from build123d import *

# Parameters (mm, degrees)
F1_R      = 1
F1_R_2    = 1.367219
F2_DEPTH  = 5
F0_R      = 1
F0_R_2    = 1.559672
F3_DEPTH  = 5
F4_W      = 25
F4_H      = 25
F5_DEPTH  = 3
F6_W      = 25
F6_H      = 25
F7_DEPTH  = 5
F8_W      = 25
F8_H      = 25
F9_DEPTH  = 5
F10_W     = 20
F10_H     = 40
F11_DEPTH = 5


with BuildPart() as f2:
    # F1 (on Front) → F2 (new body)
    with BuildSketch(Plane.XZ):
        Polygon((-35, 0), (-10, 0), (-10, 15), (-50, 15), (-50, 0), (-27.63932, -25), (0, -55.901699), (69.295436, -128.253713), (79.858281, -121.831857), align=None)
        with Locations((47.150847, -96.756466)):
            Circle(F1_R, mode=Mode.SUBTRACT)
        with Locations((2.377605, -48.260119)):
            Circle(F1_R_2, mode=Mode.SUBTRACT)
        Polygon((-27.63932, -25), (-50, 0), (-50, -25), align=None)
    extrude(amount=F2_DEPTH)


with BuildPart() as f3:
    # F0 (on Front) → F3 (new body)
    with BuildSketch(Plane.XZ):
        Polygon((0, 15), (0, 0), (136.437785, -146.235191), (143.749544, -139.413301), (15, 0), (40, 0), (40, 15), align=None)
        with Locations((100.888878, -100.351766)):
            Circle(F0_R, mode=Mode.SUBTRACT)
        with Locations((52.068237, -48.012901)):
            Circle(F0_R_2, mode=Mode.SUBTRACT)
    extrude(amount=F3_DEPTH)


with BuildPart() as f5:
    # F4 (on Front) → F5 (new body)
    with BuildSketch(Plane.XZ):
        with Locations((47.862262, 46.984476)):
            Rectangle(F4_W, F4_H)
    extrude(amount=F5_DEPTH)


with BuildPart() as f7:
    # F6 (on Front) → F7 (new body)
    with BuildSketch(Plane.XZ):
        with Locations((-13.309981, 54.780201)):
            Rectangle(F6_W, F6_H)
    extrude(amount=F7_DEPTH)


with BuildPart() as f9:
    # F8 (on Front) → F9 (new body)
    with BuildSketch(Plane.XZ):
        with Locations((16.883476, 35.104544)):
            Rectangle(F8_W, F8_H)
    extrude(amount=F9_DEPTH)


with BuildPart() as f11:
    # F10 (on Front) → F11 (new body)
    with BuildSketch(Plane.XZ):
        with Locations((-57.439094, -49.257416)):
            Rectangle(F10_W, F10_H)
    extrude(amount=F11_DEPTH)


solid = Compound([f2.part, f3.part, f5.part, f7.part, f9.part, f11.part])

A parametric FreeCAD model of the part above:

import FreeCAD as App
import Part
import Sketcher
from FreeCAD import Vector

doc = App.newDocument("Part")
body = doc.addObject("PartDesign::Body", "Body")

sketch1 = doc.addObject("Sketcher::SketchObject", "Sketch")
body.addObject(sketch1)
sketch1.AttachmentSupport = (doc.XZ_Plane, [""])
sketch1.MapMode = "FlatFace"
sketch1.addGeometry([
    Part.LineSegment(Vector(-35, 0, 0), Vector(-10, 0, 0)),
    Part.LineSegment(Vector(-10, 0, 0), Vector(-10, 15, 0)),
    Part.LineSegment(Vector(-10, 15, 0), Vector(-50, 15, 0)),
    Part.LineSegment(Vector(-50, 15, 0), Vector(-50, -25, 0)),
    Part.LineSegment(Vector(-50, -25, 0), Vector(-27.6, -25, 0)),
    Part.LineSegment(Vector(-27.6, -25, 0), Vector(0, -55.9, 0)),
    Part.LineSegment(Vector(0, -55.9, 0), Vector(69.3, -128.3, 0)),
    Part.LineSegment(Vector(69.3, -128.3, 0), Vector(79.9, -121.8, 0)),
    Part.LineSegment(Vector(79.9, -121.8, 0), Vector(-35, 0, 0)),
    Part.Circle(Vector(47.2, -96.8, 0), Vector(0, 0, 1), 1),
    Part.Circle(Vector(2.4, -48.3, 0), Vector(0, 0, 1), 1.4),
], False)
sketch1.addConstraint([
    Sketcher.Constraint("Coincident", 0, 2, 1, 1),
    Sketcher.Constraint("Coincident", 1, 2, 2, 1),
    Sketcher.Constraint("Coincident", 2, 2, 3, 1),
    Sketcher.Constraint("Coincident", 3, 2, 4, 1),
    Sketcher.Constraint("Coincident", 4, 2, 5, 1),
    Sketcher.Constraint("Coincident", 5, 2, 6, 1),
    Sketcher.Constraint("Coincident", 6, 2, 7, 1),
    Sketcher.Constraint("Coincident", 7, 2, 8, 1),
    Sketcher.Constraint("Coincident", 8, 2, 0, 1),
    Sketcher.Constraint("Horizontal", 0),
    Sketcher.Constraint("Vertical", 1),
    Sketcher.Constraint("Horizontal", 2),
    Sketcher.Constraint("Vertical", 3),
    Sketcher.Constraint("Horizontal", 4),
    Sketcher.Constraint("PointOnObject", 0, 2, -1),
    Sketcher.Constraint("PointOnObject", 5, 2, -2),
    Sketcher.Constraint("Equal", 2, 3),
    Sketcher.Constraint("Diameter", 9, 2.0),
    Sketcher.Constraint("DistanceX", 0, 1, 0, 2, 25.0),
    Sketcher.Constraint("DistanceX", 2, 2, 2, 1, 40.0),
    Sketcher.Constraint("DistanceY", 1, 1, 1, 2, 15.0),
    Sketcher.Constraint("DistanceX", 0, 2, -1, 1, 10.0),
    Sketcher.Constraint("Diameter", 10, 2.734438),
    Sketcher.Constraint("DistanceX", 4, 1, 4, 2, 22.36068),
    Sketcher.Constraint("DistanceY", 5, 2, -1, 1, 55.901699),
    Sketcher.Constraint("DistanceX", 4, 2, 7, 2, 107.497601),
    Sketcher.Constraint("Distance", 6, 100.183189),
    Sketcher.Constraint("DistanceY", 10, 3, -1, 1, 48.260119),
    Sketcher.Constraint("DistanceX", 10, 3, 9, 3, 44.773242),
    Sketcher.Constraint("DistanceX", 9, 3, 6, 2, 22.144589),
    Sketcher.Constraint("DistanceY", 7, 2, 9, 3, 25.075391),
    Sketcher.Constraint("DistanceY", 7, 2, 5, 2, 65.930158),
    Sketcher.Constraint("Distance", 7, 12.361793),
])
pad1 = doc.addObject("PartDesign::Pad", "Pad")
body.addObject(pad1)
pad1.Profile = sketch1
pad1.Length = 5
body2 = doc.addObject("PartDesign::Body", "Body001")

sketch2 = doc.addObject("Sketcher::SketchObject", "Sketch001")
body2.addObject(sketch2)
sketch2.AttachmentSupport = (doc.getObject("XZ_Plane001"), [""])
sketch2.MapMode = "FlatFace"
sketch2.addGeometry([
    Part.LineSegment(Vector(0, 15, 0), Vector(0, 0, 0)),
    Part.LineSegment(Vector(0, 0, 0), Vector(136.4, -146.2, 0)),
    Part.LineSegment(Vector(136.4, -146.2, 0), Vector(143.7, -139.4, 0)),
    Part.LineSegment(Vector(143.7, -139.4, 0), Vector(15, 0, 0)),
    Part.LineSegment(Vector(15, 0, 0), Vector(40, 0, 0)),
    Part.LineSegment(Vector(40, 0, 0), Vector(40, 15, 0)),
    Part.LineSegment(Vector(40, 15, 0), Vector(0, 15, 0)),
    Part.Circle(Vector(100.9, -100.4, 0), Vector(0, 0, 1), 1),
    Part.Circle(Vector(52.1, -48, 0), Vector(0, 0, 1), 1.6),
], False)
sketch2.addConstraint([
    Sketcher.Constraint("Coincident", 0, 2, 1, 1),
    Sketcher.Constraint("Coincident", 1, 2, 2, 1),
    Sketcher.Constraint("Coincident", 2, 2, 3, 1),
    Sketcher.Constraint("Coincident", 3, 2, 4, 1),
    Sketcher.Constraint("Coincident", 4, 2, 5, 1),
    Sketcher.Constraint("Coincident", 5, 2, 6, 1),
    Sketcher.Constraint("Coincident", 6, 2, 0, 1),
    Sketcher.Constraint("Vertical", 0),
    Sketcher.Constraint("Horizontal", 4),
    Sketcher.Constraint("Vertical", 5),
    Sketcher.Constraint("Horizontal", 6),
    Sketcher.Constraint("Coincident", 0, 2, -1, 1),
    Sketcher.Constraint("PointOnObject", 3, 2, -1),
    Sketcher.Constraint("Perpendicular", 1, 2),
    Sketcher.Constraint("Diameter", 7, 2.0),
    Sketcher.Constraint("DistanceX", 4, 1, 4, 2, 25.0),
    Sketcher.Constraint("DistanceX", 6, 2, 6, 1, 40.0),
    Sketcher.Constraint("DistanceY", 0, 2, 0, 1, 15.0),
    Sketcher.Constraint("Distance", 1, 200.000001),
    Sketcher.Constraint("Distance", 2, 10.0),
    Sketcher.Constraint("Diameter", 8, 3.119344),
    Sketcher.Constraint("DistanceY", 8, 3, -1, 1, 48.012901),
    Sketcher.Constraint("DistanceY", 2, 2, -1, 1, 139.413301),
    Sketcher.Constraint("DistanceX", -1, 1, 7, 3, 100.888878),
    Sketcher.Constraint("DistanceX", 8, 3, 7, 3, 48.820641),
    Sketcher.Constraint("DistanceY", 7, 3, -1, 1, 100.351766),
])
pad2 = doc.addObject("PartDesign::Pad", "Pad001")
body2.addObject(pad2)
pad2.Profile = sketch2
pad2.Length = 5
body3 = doc.addObject("PartDesign::Body", "Body002")

sketch3 = doc.addObject("Sketcher::SketchObject", "Sketch002")
body3.addObject(sketch3)
sketch3.AttachmentSupport = (doc.getObject("XZ_Plane002"), [""])
sketch3.MapMode = "FlatFace"
sketch3.addGeometry([
    Part.LineSegment(Vector(35, 59, 0), Vector(35, 34, 0)),
    Part.LineSegment(Vector(35, 34, 0), Vector(60, 34, 0)),
    Part.LineSegment(Vector(60, 34, 0), Vector(60, 59, 0)),
    Part.LineSegment(Vector(60, 59, 0), Vector(35, 59, 0)),
], False)
sketch3.addConstraint([
    Sketcher.Constraint("Coincident", 0, 2, 1, 1),
    Sketcher.Constraint("Coincident", 1, 2, 2, 1),
    Sketcher.Constraint("Coincident", 2, 2, 3, 1),
    Sketcher.Constraint("Coincident", 3, 2, 0, 1),
    Sketcher.Constraint("Vertical", 0),
    Sketcher.Constraint("Horizontal", 1),
    Sketcher.Constraint("Vertical", 2),
    Sketcher.Constraint("Horizontal", 3),
    Sketcher.Constraint("Equal", 3, 0),
    Sketcher.Constraint("DistanceX", 1, 1, 1, 2, 25.0),
    Sketcher.Constraint("DistanceX", -1, 1, 0, 2, 35.362262),
    Sketcher.Constraint("DistanceY", -1, 1, 0, 2, 34.484476),
])
pad3 = doc.addObject("PartDesign::Pad", "Pad002")
body3.addObject(pad3)
pad3.Profile = sketch3
pad3.Length = 3
body4 = doc.addObject("PartDesign::Body", "Body003")

sketch4 = doc.addObject("Sketcher::SketchObject", "Sketch003")
body4.addObject(sketch4)
sketch4.AttachmentSupport = (doc.getObject("XZ_Plane003"), [""])
sketch4.MapMode = "FlatFace"
sketch4.addGeometry([
    Part.LineSegment(Vector(-26, 67, 0), Vector(-26, 42, 0)),
    Part.LineSegment(Vector(-26, 42, 0), Vector(-1, 42, 0)),
    Part.LineSegment(Vector(-1, 42, 0), Vector(-1, 67, 0)),
    Part.LineSegment(Vector(-1, 67, 0), Vector(-26, 67, 0)),
], False)
sketch4.addConstraint([
    Sketcher.Constraint("Coincident", 0, 2, 1, 1),
    Sketcher.Constraint("Coincident", 1, 2, 2, 1),
    Sketcher.Constraint("Coincident", 2, 2, 3, 1),
    Sketcher.Constraint("Coincident", 3, 2, 0, 1),
    Sketcher.Constraint("Vertical", 0),
    Sketcher.Constraint("Horizontal", 1),
    Sketcher.Constraint("Vertical", 2),
    Sketcher.Constraint("Horizontal", 3),
    Sketcher.Constraint("Equal", 3, 0),
    Sketcher.Constraint("DistanceX", 1, 1, 1, 2, 25.0),
    Sketcher.Constraint("DistanceY", -1, 1, 0, 2, 42.280201),
    Sketcher.Constraint("DistanceX", 0, 2, -1, 1, 25.809981),
])
pad4 = doc.addObject("PartDesign::Pad", "Pad003")
body4.addObject(pad4)
pad4.Profile = sketch4
pad4.Length = 5
body5 = doc.addObject("PartDesign::Body", "Body004")

sketch5 = doc.addObject("Sketcher::SketchObject", "Sketch004")
body5.addObject(sketch5)
sketch5.AttachmentSupport = (doc.getObject("XZ_Plane004"), [""])
sketch5.MapMode = "FlatFace"
sketch5.addGeometry([
    Part.LineSegment(Vector(4, 48, 0), Vector(4, 23, 0)),
    Part.LineSegment(Vector(4, 23, 0), Vector(29, 23, 0)),
    Part.LineSegment(Vector(29, 23, 0), Vector(29, 48, 0)),
    Part.LineSegment(Vector(29, 48, 0), Vector(4, 48, 0)),
], False)
sketch5.addConstraint([
    Sketcher.Constraint("Coincident", 0, 2, 1, 1),
    Sketcher.Constraint("Coincident", 1, 2, 2, 1),
    Sketcher.Constraint("Coincident", 2, 2, 3, 1),
    Sketcher.Constraint("Coincident", 3, 2, 0, 1),
    Sketcher.Constraint("Vertical", 0),
    Sketcher.Constraint("Horizontal", 1),
    Sketcher.Constraint("Vertical", 2),
    Sketcher.Constraint("Horizontal", 3),
    Sketcher.Constraint("Equal", 3, 0),
    Sketcher.Constraint("DistanceX", 1, 1, 1, 2, 25.0),
    Sketcher.Constraint("DistanceX", -1, 1, 0, 2, 4.383476),
    Sketcher.Constraint("DistanceY", -1, 1, 0, 2, 22.604544),
])
pad5 = doc.addObject("PartDesign::Pad", "Pad004")
body5.addObject(pad5)
pad5.Profile = sketch5
pad5.Length = 5
body6 = doc.addObject("PartDesign::Body", "Body005")

sketch6 = doc.addObject("Sketcher::SketchObject", "Sketch005")
body6.addObject(sketch6)
sketch6.AttachmentSupport = (doc.getObject("XZ_Plane005"), [""])
sketch6.MapMode = "FlatFace"
sketch6.addGeometry([
    Part.LineSegment(Vector(-67, -29, 0), Vector(-67, -69, 0)),
    Part.LineSegment(Vector(-67, -69, 0), Vector(-47, -69, 0)),
    Part.LineSegment(Vector(-47, -69, 0), Vector(-47, -29, 0)),
    Part.LineSegment(Vector(-47, -29, 0), Vector(-67, -29, 0)),
], False)
sketch6.addConstraint([
    Sketcher.Constraint("Coincident", 0, 2, 1, 1),
    Sketcher.Constraint("Coincident", 1, 2, 2, 1),
    Sketcher.Constraint("Coincident", 2, 2, 3, 1),
    Sketcher.Constraint("Coincident", 3, 2, 0, 1),
    Sketcher.Constraint("Vertical", 0),
    Sketcher.Constraint("Horizontal", 1),
    Sketcher.Constraint("Vertical", 2),
    Sketcher.Constraint("Horizontal", 3),
    Sketcher.Constraint("DistanceX", 1, 1, 1, 2, 20.0),
    Sketcher.Constraint("DistanceY", 0, 2, 0, 1, 40.0),
    Sketcher.Constraint("DistanceX", 0, 2, -1, 1, 67.439094),
    Sketcher.Constraint("DistanceY", 0, 2, -1, 1, 69.257416),
])
pad6 = doc.addObject("PartDesign::Pad", "Pad005")
body6.addObject(pad6)
pad6.Profile = sketch6
pad6.Length = 5

doc.recompute()
